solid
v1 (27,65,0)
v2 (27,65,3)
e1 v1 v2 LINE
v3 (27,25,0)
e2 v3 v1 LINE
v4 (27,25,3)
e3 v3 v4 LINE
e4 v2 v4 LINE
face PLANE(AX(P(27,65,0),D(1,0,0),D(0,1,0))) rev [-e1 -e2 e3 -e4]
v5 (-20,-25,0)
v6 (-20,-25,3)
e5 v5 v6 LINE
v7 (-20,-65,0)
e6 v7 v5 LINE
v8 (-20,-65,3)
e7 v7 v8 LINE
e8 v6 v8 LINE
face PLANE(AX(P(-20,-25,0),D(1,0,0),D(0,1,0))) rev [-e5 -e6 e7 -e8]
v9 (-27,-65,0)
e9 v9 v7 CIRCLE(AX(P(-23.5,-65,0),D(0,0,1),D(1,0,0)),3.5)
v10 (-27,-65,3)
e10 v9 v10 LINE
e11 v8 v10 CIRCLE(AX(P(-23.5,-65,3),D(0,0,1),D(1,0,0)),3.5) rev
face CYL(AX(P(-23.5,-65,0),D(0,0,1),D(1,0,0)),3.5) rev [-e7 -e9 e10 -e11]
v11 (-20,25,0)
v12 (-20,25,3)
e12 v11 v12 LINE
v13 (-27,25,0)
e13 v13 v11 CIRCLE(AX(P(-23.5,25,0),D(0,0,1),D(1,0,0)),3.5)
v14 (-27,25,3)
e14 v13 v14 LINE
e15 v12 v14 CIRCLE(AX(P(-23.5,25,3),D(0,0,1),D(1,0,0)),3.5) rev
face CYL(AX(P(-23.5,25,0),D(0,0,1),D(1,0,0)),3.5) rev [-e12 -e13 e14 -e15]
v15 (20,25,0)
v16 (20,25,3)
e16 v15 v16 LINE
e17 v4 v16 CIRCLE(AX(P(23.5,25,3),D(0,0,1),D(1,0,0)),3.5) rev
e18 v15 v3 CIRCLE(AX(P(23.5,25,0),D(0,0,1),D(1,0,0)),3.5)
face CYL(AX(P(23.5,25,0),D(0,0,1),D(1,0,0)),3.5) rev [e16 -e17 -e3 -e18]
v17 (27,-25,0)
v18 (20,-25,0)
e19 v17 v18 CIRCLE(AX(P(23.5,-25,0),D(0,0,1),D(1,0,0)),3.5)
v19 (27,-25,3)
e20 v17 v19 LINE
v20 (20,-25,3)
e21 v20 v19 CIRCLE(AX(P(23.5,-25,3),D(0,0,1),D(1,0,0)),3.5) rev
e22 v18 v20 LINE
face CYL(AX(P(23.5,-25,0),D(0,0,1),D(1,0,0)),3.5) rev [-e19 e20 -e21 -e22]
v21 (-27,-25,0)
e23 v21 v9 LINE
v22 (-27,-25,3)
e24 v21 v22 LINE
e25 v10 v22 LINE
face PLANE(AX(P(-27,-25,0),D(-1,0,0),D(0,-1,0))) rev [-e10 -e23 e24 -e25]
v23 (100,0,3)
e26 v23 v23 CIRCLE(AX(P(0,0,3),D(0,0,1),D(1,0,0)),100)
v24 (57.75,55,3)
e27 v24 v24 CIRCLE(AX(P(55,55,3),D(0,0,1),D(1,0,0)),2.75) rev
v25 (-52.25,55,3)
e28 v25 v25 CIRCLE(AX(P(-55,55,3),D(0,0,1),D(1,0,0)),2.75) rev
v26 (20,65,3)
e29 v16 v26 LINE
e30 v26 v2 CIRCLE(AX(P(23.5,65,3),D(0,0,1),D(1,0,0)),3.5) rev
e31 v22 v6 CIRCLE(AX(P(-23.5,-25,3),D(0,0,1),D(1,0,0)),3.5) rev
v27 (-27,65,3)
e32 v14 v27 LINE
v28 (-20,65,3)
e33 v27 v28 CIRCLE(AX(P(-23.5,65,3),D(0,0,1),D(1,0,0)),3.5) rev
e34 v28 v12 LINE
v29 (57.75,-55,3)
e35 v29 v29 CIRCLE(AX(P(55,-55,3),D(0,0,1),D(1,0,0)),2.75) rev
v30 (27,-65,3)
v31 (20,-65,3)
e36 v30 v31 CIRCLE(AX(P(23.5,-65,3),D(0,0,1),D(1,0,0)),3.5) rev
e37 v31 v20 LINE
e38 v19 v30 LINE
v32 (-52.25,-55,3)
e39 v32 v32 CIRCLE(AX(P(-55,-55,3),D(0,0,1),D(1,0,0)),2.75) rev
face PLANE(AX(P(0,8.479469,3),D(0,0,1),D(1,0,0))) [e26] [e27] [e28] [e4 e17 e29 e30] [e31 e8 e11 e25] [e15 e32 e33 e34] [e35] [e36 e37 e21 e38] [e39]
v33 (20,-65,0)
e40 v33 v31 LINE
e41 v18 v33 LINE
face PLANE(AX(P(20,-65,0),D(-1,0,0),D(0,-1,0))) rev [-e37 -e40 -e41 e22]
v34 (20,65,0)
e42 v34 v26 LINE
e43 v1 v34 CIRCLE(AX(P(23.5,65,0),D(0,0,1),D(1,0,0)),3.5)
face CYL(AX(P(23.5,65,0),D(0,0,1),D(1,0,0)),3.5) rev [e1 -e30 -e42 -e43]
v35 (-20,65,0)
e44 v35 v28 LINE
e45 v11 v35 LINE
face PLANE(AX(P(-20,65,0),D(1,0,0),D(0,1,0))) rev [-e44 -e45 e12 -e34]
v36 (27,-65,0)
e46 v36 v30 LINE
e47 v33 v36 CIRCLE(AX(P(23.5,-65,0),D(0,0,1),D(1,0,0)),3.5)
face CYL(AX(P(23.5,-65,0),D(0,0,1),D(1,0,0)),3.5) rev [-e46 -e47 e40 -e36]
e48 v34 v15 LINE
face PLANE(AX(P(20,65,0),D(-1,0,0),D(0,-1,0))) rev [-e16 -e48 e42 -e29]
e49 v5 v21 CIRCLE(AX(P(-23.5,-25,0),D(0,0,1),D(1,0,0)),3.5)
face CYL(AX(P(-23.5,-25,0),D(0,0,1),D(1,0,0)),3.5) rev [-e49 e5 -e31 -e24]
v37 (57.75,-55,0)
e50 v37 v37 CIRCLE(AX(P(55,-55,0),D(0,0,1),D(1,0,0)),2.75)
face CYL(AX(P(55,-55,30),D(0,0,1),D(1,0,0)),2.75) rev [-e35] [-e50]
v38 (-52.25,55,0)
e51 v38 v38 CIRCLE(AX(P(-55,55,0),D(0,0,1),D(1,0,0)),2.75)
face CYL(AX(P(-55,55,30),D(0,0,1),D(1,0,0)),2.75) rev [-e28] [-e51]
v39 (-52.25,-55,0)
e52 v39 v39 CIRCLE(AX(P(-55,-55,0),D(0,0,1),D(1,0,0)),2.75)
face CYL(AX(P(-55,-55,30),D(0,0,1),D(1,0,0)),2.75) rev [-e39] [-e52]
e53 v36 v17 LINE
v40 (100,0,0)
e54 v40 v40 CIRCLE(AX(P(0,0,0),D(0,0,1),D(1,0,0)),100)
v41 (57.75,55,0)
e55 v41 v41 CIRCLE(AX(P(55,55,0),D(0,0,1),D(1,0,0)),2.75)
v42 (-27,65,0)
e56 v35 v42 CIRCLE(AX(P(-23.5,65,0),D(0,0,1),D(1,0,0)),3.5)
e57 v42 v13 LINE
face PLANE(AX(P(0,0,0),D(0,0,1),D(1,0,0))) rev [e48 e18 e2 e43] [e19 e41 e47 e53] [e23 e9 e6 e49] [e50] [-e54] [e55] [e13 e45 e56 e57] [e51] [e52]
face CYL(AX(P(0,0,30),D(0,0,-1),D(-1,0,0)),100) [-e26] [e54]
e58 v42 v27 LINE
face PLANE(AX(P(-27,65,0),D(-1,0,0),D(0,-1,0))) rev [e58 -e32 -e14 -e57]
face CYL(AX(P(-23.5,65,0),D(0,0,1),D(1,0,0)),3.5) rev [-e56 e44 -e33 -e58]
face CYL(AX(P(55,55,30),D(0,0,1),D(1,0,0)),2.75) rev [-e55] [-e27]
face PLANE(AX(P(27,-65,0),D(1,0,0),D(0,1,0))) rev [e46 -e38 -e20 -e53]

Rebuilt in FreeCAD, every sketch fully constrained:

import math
import FreeCAD as App
import Part
import Sketcher

doc = App.newDocument("Part")
body = doc.addObject("PartDesign::Body", "Body")

# Sketch on XY plane
sketch1 = doc.addObject("Sketcher::SketchObject", "Sketch")
body.addObject(sketch1)
sketch1.AttachmentSupport = (doc.XY_Plane, [""])
sketch1.MapMode = "FlatFace"
sketch1.addGeometry(Part.Circle(App.Vector(0, 0, 0), App.Vector(0, 0, 1), 100), False)
sketch1.addConstraint([
    Sketcher.Constraint("Coincident", 0, 3, -1, 1),
    Sketcher.Constraint("Diameter", 0, 200.0),
])
pad1 = doc.addObject("PartDesign::Pad", "Pad")
body.addObject(pad1)
pad1.Profile = sketch1
pad1.Length = 30

# Sketch on XY plane
sketch2 = doc.addObject("Sketcher::SketchObject", "Sketch001")
body.addObject(sketch2)
sketch2.AttachmentSupport = (doc.XY_Plane, [""])
sketch2.MapMode = "FlatFace"
sketch2.AttachmentOffset = App.Placement(App.Vector(0, 0, 30), App.Rotation())
sketch2.addGeometry([
    Part.LineSegment(App.Vector(27, 25, 0), App.Vector(27, 65, 0)),  # 0
    Part.ArcOfCircle(Part.Circle(App.Vector(23.5, 65, 0), App.Vector(0, 0, 1), 3.5), math.radians(0), math.radians(180)),  # 1
    Part.LineSegment(App.Vector(20, 65, 0), App.Vector(20, 25, 0)),  # 2
    Part.ArcOfCircle(Part.Circle(App.Vector(23.5, 25, 0), App.Vector(0, 0, 1), 3.5), math.radians(180), math.radians(360)),  # 3
    Part.LineSegment(App.Vector(-20, 25, 0), App.Vector(-20, 65, 0)),  # 4
    Part.ArcOfCircle(Part.Circle(App.Vector(-23.5, 65, 0), App.Vector(0, 0, 1), 3.5), math.radians(0), math.radians(180)),  # 5
    Part.LineSegment(App.Vector(-27, 65, 0), App.Vector(-27, 25, 0)),  # 6
    Part.ArcOfCircle(Part.Circle(App.Vector(-23.5, 25, 0), App.Vector(0, 0, 1), 3.5), math.radians(180), math.radians(360)),  # 7
    Part.LineSegment(App.Vector(-20, -65, 0), App.Vector(-20, -25, 0)),  # 8
    Part.ArcOfCircle(Part.Circle(App.Vector(-23.5, -25, 0), App.Vector(0, 0, 1), 3.5), math.radians(0), math.radians(180)),  # 9
    Part.LineSegment(App.Vector(-27, -25, 0), App.Vector(-27, -65, 0)),  # 10
    Part.ArcOfCircle(Part.Circle(App.Vector(-23.5, -65, 0), App.Vector(0, 0, 1), 3.5), math.radians(180), math.radians(360)),  # 11
    Part.LineSegment(App.Vector(20, -25, 0), App.Vector(20, -65, 0)),  # 12
    Part.ArcOfCircle(Part.Circle(App.Vector(23.5, -65, 0), App.Vector(0, 0, 1), 3.5), math.radians(180), math.radians(360)),  # 13
    Part.LineSegment(App.Vector(27, -65, 0), App.Vector(27, -25, 0)),  # 14
    Part.ArcOfCircle(Part.Circle(App.Vector(23.5, -25, 0), App.Vector(0, 0, 1), 3.5), math.radians(0), math.radians(180)),  # 15
], False)
sketch2.addConstraint([
    Sketcher.Constraint("Tangent", 0, 2, 1, 1),
    Sketcher.Constraint("Tangent", 1, 2, 2, 1),
    Sketcher.Constraint("Tangent", 2, 2, 3, 1),
    Sketcher.Constraint("Tangent", 3, 2, 0, 1),
    Sketcher.Constraint("Tangent", 4, 2, 5, 1),
    Sketcher.Constraint("Tangent", 5, 2, 6, 1),
    Sketcher.Constraint("Tangent", 6, 2, 7, 1),
    Sketcher.Constraint("Tangent", 7, 2, 4, 1),
    Sketcher.Constraint("Tangent", 8, 2, 9, 1),
    Sketcher.Constraint("Tangent", 9, 2, 10, 1),
    Sketcher.Constraint("Tangent", 10, 2, 11, 1),
    Sketcher.Constraint("Tangent", 11, 2, 8, 1),
    Sketcher.Constraint("Tangent", 12, 2, 13, 1),
    Sketcher.Constraint("Tangent", 13, 2, 14, 1),
    Sketcher.Constraint("Tangent", 14, 2, 15, 1),
    Sketcher.Constraint("Tangent", 15, 2, 12, 1),
    Sketcher.Constraint("Vertical", 0),
    Sketcher.Constraint("Vertical", 2),
    Sketcher.Constraint("Vertical", 4),
    Sketcher.Constraint("Vertical", 6),
    Sketcher.Constraint("Vertical", 8),
    Sketcher.Constraint("Vertical", 10),
    Sketcher.Constraint("Vertical", 12),
    Sketcher.Constraint("Vertical", 14),
    Sketcher.Constraint("Equal", 3, 5),
    Sketcher.Constraint("Equal", 7, 9),
    Sketcher.Constraint("Equal", 11, 13),
    Sketcher.Constraint("Symmetric", 3, 3, 9, 3, -1, 1),
    Sketcher.Constraint("Symmetric", 5, 3, 13, 3, -1, 1),
    Sketcher.Constraint("Symmetric", 1, 3, 5, 3, -2),
    Sketcher.Constraint("Horizontal", 3, 3, 7, 3),
    Sketcher.Constraint("Horizontal", 11, 3, 13, 3),
    Sketcher.Constraint("Horizontal", 9, 3, 15, 3),
    Sketcher.Constraint("Radius", 1, 3.5),
    Sketcher.Constraint("DistanceY", 0, 1, 0, 2, 40.0),
    Sketcher.Constraint("DistanceY", -1, 1, 1, 3, 65.0),
    Sketcher.Constraint("DistanceX", -1, 1, 0, 2, 27.0),
])
pocket1 = doc.addObject("PartDesign::Pocket", "Pocket")
body.addObject(pocket1)
pocket1.Profile = sketch2
pocket1.Type = "ThroughAll"

# Sketch on XY plane
sketch3 = doc.addObject("Sketcher::SketchObject", "Sketch002")
body.addObject(sketch3)
sketch3.AttachmentSupport = (doc.XY_Plane, [""])
sketch3.MapMode = "FlatFace"
sketch3.AttachmentOffset = App.Placement(App.Vector(0, 0, 30), App.Rotation())
sketch3.addGeometry([
    Part.Circle(App.Vector(-55, 55, 0), App.Vector(0, 0, 1), 2.8),
    Part.Circle(App.Vector(55, 55, 0), App.Vector(0, 0, 1), 2.8),
    Part.Circle(App.Vector(55, -55, 0), App.Vector(0, 0, 1), 2.8),
    Part.Circle(App.Vector(-55, -55, 0), App.Vector(0, 0, 1), 2.8),
], False)
sketch3.addConstraint([
    Sketcher.Constraint("Equal", 0, 1),
    Sketcher.Constraint("Equal", 1, 2),
    Sketcher.Constraint("Equal", 2, 3),
    Sketcher.Constraint("Symmetric", 0, 3, 2, 3, -1, 1),
    Sketcher.Constraint("Symmetric", 1, 3, 3, 3, -1, 1),
    Sketcher.Constraint("Symmetric", 0, 3, 1, 3, -2),
    Sketcher.Constraint("Diameter", 0, 5.5),
    Sketcher.Constraint("DistanceX", 0, 3, -1, 1, 55.0),
    Sketcher.Constraint("DistanceY", -1, 1, 0, 3, 55.0),
])
doc.recompute()
hole = doc.addObject("PartDesign::Hole", "Hole")
body.addObject(hole)
hole.Profile = sketch3
hole.ThreadType = "None"
hole.Diameter = 5.5
hole.DepthType = "ThroughAll"

# Sketch on XY plane
sketch4 = doc.addObject("Sketcher::SketchObject", "Sketch003")
body.addObject(sketch4)
sketch4.AttachmentSupport = (doc.XY_Plane, [""])
sketch4.MapMode = "FlatFace"
sketch4.AttachmentOffset = App.Placement(App.Vector(0, 0, 30), App.Rotation())
sketch4.addGeometry(Part.Circle(App.Vector(0, 8, 0), App.Vector(0, 0, 1), 184), False)
sketch4.addConstraint([
    Sketcher.Constraint("PointOnObject", 0, 3, -2),
    Sketcher.Constraint("Diameter", 0, 367.075116),
    Sketcher.Constraint("DistanceY", -1, 1, 0, 3, 8.479469),
])
pocket2 = doc.addObject("PartDesign::Pocket", "Pocket001")
body.addObject(pocket2)
pocket2.Profile = sketch4
pocket2.Length = 27

doc.recompute()
